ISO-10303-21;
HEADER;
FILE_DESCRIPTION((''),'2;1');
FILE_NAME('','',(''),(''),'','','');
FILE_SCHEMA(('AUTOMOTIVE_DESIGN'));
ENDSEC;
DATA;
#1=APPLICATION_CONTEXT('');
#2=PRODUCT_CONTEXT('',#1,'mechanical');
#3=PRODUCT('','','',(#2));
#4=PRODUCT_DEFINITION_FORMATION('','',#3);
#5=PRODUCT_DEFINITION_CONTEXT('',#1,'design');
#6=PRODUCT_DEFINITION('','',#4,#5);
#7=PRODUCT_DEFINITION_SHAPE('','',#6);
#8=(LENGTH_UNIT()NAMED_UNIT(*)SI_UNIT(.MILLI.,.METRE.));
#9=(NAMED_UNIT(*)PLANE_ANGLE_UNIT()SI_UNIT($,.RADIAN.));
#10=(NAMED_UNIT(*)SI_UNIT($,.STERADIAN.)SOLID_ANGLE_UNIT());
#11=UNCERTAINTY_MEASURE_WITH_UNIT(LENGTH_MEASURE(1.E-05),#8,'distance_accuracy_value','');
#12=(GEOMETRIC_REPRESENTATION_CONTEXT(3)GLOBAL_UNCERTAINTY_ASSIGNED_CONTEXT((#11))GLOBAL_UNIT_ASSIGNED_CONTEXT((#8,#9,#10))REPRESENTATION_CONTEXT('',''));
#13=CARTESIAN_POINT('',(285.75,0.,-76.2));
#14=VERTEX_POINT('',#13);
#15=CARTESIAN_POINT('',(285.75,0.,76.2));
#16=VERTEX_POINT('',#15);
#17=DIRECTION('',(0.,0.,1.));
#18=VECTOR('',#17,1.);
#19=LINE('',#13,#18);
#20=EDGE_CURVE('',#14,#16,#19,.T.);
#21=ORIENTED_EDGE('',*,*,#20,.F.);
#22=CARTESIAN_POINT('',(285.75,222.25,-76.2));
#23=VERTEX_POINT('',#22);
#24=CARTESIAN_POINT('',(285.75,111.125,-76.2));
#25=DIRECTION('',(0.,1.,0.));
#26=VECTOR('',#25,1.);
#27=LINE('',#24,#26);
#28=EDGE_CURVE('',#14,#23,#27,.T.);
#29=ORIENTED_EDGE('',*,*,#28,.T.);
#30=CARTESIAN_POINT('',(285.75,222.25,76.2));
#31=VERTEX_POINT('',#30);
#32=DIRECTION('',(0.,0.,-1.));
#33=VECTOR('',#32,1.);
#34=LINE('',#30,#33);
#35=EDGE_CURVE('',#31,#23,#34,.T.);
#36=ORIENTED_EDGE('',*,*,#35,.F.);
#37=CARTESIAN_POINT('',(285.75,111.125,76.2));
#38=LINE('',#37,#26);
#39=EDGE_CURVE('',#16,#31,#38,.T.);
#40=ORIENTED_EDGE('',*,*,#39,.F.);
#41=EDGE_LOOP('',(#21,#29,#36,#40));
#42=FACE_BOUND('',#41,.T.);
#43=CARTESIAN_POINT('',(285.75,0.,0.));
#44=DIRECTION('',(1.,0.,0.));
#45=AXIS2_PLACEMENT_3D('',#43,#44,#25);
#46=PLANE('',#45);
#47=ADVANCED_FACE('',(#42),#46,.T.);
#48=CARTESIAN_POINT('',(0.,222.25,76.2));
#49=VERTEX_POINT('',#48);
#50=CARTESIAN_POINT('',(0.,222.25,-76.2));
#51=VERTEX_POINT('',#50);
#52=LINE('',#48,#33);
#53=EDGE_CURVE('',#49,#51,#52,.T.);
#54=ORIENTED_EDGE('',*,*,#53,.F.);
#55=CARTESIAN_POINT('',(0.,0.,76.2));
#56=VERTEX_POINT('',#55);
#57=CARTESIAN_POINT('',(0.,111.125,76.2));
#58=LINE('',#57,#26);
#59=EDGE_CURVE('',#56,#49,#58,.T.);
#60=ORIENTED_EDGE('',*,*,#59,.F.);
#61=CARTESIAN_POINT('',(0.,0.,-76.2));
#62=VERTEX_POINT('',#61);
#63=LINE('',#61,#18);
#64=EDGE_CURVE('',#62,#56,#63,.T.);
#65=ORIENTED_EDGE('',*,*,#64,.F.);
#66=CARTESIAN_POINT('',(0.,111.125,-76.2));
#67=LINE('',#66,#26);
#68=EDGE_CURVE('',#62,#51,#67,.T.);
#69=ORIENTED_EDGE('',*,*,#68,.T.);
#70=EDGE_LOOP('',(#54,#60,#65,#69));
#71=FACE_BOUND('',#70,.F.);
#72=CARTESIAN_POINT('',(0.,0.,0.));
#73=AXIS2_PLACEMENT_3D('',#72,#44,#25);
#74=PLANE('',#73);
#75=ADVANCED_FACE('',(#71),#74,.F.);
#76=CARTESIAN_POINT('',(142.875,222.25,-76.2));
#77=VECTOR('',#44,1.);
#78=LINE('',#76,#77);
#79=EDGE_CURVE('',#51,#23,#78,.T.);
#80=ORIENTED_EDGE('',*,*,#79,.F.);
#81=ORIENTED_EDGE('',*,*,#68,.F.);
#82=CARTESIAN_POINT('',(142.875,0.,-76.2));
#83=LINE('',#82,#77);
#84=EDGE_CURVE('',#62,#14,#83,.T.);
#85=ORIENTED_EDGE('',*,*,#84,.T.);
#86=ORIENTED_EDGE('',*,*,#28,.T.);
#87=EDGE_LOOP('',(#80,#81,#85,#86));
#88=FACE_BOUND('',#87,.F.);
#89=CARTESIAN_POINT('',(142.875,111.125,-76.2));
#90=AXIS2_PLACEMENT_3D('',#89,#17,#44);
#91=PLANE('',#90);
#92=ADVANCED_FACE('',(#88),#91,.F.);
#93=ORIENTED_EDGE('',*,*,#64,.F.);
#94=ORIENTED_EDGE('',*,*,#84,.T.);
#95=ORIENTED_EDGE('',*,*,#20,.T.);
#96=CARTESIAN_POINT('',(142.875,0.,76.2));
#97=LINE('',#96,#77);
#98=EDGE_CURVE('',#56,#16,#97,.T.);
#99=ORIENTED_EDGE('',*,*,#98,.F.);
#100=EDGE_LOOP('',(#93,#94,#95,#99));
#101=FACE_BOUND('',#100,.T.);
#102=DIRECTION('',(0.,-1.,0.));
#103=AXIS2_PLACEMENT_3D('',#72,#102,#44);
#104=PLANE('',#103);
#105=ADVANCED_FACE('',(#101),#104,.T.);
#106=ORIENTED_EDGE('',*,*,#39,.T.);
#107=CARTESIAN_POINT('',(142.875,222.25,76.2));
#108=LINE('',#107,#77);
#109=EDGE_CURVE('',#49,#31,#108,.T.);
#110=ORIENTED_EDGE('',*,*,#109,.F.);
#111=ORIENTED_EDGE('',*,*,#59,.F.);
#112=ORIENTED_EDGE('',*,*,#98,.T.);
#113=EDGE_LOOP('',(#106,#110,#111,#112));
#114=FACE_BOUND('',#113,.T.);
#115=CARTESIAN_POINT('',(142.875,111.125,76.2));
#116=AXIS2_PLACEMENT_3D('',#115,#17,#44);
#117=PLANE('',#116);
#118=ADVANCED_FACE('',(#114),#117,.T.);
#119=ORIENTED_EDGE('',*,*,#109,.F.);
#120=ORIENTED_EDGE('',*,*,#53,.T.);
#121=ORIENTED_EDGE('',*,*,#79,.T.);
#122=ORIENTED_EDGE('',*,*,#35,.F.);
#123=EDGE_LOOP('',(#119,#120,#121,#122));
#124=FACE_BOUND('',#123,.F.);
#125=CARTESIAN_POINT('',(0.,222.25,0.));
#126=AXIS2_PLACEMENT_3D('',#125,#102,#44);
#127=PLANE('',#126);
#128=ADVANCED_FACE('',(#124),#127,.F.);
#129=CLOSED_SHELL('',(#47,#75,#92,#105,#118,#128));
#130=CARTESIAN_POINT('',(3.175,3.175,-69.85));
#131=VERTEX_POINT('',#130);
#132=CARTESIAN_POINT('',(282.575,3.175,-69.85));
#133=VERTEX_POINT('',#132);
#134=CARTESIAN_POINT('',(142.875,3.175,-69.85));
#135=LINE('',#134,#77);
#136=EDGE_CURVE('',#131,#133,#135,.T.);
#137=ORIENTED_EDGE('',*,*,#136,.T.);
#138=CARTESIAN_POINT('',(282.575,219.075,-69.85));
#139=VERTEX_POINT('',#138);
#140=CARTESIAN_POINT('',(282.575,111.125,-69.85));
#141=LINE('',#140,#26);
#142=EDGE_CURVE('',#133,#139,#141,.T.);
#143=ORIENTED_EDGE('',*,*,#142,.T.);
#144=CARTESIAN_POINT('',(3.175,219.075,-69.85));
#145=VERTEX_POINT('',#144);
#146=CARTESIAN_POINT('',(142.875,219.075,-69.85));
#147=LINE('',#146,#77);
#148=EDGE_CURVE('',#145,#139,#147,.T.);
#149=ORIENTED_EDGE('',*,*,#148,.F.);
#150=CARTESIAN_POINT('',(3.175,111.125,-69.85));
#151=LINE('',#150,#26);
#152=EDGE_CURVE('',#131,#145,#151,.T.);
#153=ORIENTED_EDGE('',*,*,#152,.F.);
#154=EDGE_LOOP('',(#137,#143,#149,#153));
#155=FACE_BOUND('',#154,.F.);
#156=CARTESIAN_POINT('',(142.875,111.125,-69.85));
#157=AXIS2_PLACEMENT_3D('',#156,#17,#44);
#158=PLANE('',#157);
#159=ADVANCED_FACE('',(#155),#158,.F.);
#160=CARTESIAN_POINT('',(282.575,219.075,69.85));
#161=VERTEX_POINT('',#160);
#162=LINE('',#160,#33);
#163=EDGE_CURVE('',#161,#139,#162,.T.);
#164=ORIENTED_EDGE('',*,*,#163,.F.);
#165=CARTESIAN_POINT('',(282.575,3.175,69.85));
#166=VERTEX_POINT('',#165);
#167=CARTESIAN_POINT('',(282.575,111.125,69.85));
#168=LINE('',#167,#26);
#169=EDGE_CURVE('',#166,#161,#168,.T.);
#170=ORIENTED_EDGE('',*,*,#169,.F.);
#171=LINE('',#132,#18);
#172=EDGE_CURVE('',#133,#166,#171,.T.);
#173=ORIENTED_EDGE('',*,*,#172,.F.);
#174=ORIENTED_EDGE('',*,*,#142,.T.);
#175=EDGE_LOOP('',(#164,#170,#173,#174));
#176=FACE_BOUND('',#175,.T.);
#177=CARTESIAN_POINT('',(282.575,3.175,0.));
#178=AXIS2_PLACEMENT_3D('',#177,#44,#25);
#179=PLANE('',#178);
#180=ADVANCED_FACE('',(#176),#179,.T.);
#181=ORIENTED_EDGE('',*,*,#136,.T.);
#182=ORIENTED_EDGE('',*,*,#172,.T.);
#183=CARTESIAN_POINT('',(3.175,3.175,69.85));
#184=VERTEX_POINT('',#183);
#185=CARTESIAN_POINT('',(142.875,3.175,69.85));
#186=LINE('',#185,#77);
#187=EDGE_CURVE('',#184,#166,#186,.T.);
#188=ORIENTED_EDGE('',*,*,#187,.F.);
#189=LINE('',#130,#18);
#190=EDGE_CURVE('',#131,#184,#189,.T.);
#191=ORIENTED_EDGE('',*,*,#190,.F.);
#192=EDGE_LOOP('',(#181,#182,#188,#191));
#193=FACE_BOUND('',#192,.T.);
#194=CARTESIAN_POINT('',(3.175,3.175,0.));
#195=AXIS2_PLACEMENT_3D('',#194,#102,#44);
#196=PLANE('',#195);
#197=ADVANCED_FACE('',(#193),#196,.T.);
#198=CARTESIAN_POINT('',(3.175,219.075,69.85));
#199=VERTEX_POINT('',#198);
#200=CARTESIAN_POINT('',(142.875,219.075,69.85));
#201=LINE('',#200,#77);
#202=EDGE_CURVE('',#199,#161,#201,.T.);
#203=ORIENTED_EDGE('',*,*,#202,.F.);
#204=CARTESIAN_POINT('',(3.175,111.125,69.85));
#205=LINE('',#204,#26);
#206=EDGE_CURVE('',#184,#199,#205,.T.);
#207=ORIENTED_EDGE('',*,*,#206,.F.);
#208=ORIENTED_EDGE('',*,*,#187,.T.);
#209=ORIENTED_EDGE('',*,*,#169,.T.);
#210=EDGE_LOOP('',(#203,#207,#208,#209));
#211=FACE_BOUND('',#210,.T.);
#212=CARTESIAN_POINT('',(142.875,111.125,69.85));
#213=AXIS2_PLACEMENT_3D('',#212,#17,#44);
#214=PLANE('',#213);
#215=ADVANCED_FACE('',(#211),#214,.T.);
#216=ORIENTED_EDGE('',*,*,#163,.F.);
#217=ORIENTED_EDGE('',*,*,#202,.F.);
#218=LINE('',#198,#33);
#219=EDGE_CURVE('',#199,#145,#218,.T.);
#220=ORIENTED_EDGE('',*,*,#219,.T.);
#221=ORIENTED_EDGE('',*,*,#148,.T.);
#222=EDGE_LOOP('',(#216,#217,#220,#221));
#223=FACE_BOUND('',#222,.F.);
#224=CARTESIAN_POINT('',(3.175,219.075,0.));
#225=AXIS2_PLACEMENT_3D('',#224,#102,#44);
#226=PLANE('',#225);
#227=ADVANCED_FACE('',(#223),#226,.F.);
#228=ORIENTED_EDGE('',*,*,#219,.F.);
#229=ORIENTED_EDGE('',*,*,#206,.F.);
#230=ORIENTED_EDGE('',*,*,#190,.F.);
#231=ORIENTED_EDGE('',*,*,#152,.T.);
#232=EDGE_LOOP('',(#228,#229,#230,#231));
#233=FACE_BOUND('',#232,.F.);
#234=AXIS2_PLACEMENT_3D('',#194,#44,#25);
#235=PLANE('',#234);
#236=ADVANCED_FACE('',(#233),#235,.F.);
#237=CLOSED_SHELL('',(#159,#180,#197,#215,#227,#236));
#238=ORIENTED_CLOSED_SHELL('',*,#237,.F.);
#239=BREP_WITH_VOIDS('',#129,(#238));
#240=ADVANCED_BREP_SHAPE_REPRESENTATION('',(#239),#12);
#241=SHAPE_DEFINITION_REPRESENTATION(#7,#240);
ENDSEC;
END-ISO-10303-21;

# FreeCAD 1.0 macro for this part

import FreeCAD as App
import Part
import Sketcher
Q = App.Units.Quantity

doc = App.newDocument("Part")
body = doc.addObject("PartDesign::Body", "Body")

# Sketch on XY plane
sketch1 = body.newObject("Sketcher::SketchObject", "Sketch")
sketch1.AttachmentSupport = (doc.getObject("XY_Plane"), [""])
sketch1.MapMode = "FlatFace"
sketch1.addGeometry(Part.LineSegment(App.Vector(0, 222, 0), App.Vector(0, 0, 0)), False)
sketch1.addGeometry(Part.LineSegment(App.Vector(0, 0, 0), App.Vector(286, 0, 0)), False)
sketch1.addGeometry(Part.LineSegment(App.Vector(286, 0, 0), App.Vector(286, 222, 0)), False)
sketch1.addGeometry(Part.LineSegment(App.Vector(286, 222, 0), App.Vector(0, 222, 0)), False)
sketch1.addConstraint(Sketcher.Constraint("Coincident", 0, 2, 1, 1))
sketch1.addConstraint(Sketcher.Constraint("Coincident", 1, 2, 2, 1))
sketch1.addConstraint(Sketcher.Constraint("Coincident", 2, 2, 3, 1))
sketch1.addConstraint(Sketcher.Constraint("Coincident", 3, 2, 0, 1))
sketch1.addConstraint(Sketcher.Constraint("Vertical", 0))
sketch1.addConstraint(Sketcher.Constraint("Horizontal", 1))
sketch1.addConstraint(Sketcher.Constraint("Vertical", 2))
sketch1.addConstraint(Sketcher.Constraint("Horizontal", 3))
sketch1.addConstraint(Sketcher.Constraint("Coincident", 0, 2, -1, 1))
sketch1.addConstraint(Sketcher.Constraint("DistanceX", 1, 1, 1, 2, Q("11.25 in")))
sketch1.addConstraint(Sketcher.Constraint("DistanceY", 0, 2, 0, 1, Q("8.75 in")))
pad1 = body.newObject("PartDesign::Pad", "Pad")
pad1.Profile = sketch1
pad1.Length = Q("6 in")
pad1.Midplane = True

# Sketch on XY plane
sketch2 = body.newObject("Sketcher::SketchObject", "Sketch001")
sketch2.AttachmentSupport = (doc.getObject("XY_Plane"), [""])
sketch2.MapMode = "FlatFace"
sketch2.addGeometry(Part.LineSegment(App.Vector(3, 219, 0), App.Vector(3, 3, 0)), False)
sketch2.addGeometry(Part.LineSegment(App.Vector(3, 3, 0), App.Vector(283, 3, 0)), False)
sketch2.addGeometry(Part.LineSegment(App.Vector(283, 3, 0), App.Vector(283, 219, 0)), False)
sketch2.addGeometry(Part.LineSegment(App.Vector(283, 219, 0), App.Vector(3, 219, 0)), False)
sketch2.addConstraint(Sketcher.Constraint("Coincident", 0, 2, 1, 1))
sketch2.addConstraint(Sketcher.Constraint("Coincident", 1, 2, 2, 1))
sketch2.addConstraint(Sketcher.Constraint("Coincident", 2, 2, 3, 1))
sketch2.addConstraint(Sketcher.Constraint("Coincident", 3, 2, 0, 1))
sketch2.addConstraint(Sketcher.Constraint("Vertical", 0))
sketch2.addConstraint(Sketcher.Constraint("Horizontal", 1))
sketch2.addConstraint(Sketcher.Constraint("Vertical", 2))
sketch2.addConstraint(Sketcher.Constraint("Horizontal", 3))
sketch2.addConstraint(Sketcher.Constraint("DistanceX", 1, 1, 1, 2, Q("11 in")))
sketch2.addConstraint(Sketcher.Constraint("DistanceY", 0, 2, 0, 1, Q("8.5 in")))
sketch2.addConstraint(Sketcher.Constraint("DistanceX", -1, 1, 0, 2, Q("0.125 in")))
sketch2.addConstraint(Sketcher.Constraint("DistanceY", -1, 1, 0, 2, Q("0.125 in")))
pocket1 = body.newObject("PartDesign::Pocket", "Pocket")
pocket1.Profile = sketch2
pocket1.Length = Q("5.5 in")
pocket1.Midplane = True

doc.recompute()
